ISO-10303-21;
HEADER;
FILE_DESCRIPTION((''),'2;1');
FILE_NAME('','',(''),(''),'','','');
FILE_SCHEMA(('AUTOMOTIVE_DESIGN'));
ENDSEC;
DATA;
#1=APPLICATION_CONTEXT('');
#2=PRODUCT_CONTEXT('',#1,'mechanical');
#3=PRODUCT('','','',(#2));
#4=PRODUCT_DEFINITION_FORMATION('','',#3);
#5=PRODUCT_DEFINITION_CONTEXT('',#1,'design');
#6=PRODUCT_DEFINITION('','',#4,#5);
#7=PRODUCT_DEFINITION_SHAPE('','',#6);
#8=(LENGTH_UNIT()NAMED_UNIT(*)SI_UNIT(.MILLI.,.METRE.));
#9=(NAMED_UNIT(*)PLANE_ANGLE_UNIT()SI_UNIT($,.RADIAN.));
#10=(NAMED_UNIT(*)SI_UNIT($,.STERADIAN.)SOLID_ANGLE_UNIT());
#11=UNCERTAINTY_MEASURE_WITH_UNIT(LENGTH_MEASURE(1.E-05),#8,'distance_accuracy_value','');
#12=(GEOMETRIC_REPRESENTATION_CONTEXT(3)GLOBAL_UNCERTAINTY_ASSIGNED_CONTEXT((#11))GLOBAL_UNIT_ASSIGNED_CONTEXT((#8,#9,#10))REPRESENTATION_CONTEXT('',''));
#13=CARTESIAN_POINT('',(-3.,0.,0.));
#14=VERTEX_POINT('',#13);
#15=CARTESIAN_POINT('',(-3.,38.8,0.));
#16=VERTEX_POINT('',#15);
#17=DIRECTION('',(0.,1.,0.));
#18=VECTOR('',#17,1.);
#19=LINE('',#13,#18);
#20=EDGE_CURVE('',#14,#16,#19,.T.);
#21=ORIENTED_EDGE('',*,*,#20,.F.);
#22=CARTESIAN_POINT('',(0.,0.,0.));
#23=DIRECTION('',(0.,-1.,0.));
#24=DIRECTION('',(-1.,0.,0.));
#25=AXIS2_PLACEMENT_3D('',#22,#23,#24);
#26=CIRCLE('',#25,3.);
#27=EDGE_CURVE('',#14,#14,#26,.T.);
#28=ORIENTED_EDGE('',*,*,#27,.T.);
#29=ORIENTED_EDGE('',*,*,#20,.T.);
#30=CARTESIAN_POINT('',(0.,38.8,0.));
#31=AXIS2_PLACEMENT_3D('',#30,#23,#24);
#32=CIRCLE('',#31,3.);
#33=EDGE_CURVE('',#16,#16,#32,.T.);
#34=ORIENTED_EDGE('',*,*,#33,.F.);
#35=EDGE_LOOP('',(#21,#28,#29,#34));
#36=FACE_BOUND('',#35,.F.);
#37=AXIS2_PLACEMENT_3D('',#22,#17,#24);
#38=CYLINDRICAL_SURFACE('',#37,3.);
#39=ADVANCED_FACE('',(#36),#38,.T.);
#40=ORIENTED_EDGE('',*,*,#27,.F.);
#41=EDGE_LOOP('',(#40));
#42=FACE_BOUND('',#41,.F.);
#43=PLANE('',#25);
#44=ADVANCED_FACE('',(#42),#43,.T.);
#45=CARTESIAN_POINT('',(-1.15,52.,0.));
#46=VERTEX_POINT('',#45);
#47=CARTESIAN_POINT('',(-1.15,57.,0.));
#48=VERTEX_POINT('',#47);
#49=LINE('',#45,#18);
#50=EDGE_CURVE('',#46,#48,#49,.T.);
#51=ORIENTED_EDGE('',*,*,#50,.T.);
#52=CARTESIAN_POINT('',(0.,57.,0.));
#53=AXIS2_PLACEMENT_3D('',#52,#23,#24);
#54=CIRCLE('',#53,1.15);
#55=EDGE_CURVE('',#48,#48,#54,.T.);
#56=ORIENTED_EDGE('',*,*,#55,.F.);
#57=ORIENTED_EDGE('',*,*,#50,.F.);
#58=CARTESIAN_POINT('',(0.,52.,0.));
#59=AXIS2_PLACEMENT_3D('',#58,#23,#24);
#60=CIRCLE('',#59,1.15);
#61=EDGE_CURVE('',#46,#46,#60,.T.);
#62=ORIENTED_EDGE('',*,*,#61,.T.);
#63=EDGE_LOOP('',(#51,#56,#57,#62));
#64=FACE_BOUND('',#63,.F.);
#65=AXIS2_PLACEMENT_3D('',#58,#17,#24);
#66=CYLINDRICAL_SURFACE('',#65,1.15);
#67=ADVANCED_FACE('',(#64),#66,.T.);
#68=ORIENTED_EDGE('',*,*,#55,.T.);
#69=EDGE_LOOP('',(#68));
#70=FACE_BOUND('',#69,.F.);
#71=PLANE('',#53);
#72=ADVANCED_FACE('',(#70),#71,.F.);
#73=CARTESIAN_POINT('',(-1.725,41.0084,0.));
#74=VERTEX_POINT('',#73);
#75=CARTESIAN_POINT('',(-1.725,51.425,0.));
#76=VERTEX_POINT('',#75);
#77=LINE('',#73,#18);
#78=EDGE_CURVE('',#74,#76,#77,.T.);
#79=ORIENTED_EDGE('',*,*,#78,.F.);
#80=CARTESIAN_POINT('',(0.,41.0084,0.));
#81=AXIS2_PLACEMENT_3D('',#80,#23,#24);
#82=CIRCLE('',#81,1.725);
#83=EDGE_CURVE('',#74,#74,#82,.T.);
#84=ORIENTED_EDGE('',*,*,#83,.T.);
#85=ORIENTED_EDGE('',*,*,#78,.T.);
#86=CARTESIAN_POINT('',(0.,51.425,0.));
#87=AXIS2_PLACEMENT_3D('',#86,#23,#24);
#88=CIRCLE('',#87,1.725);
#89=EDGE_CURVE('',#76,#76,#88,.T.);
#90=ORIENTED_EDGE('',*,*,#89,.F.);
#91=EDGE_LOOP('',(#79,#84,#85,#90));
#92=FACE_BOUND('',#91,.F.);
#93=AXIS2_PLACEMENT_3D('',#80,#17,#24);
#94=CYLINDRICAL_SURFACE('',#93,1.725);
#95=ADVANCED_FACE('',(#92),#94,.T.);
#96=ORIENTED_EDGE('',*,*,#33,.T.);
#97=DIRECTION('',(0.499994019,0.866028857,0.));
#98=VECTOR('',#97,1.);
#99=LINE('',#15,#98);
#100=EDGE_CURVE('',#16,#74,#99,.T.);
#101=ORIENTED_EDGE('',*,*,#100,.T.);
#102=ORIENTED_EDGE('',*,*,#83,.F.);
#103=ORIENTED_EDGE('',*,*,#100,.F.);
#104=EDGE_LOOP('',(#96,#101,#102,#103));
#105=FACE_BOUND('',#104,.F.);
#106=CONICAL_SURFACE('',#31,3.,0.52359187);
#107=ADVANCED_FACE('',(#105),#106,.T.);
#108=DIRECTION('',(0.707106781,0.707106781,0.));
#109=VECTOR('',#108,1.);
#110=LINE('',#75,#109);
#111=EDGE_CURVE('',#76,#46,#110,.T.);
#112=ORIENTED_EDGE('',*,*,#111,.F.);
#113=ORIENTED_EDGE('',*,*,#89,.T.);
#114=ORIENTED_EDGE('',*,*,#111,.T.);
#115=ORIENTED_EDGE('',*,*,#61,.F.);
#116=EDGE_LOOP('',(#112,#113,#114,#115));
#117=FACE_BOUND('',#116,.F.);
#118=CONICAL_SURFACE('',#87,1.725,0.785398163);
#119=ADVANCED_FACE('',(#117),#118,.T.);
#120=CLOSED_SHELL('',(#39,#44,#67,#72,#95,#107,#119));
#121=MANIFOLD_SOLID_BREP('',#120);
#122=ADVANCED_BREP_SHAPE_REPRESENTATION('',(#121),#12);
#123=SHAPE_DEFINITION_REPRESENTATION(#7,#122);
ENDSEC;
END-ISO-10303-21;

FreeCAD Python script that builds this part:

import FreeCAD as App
import Part
import Sketcher
Q = App.Units.Quantity


def add_polygon(sketch, points):
    """Adds a closed chain of lines whose ends are joined by coincident constraints."""
    first, n = sketch.GeometryCount, len(points)
    for a, b in zip(points, points[1:] + points[:1]):
        sketch.addGeometry(Part.LineSegment(App.Vector(*a, 0), App.Vector(*b, 0)), False)
    for i in range(n):
        sketch.addConstraint(Sketcher.Constraint("Coincident", first + i, 2, first + (i + 1) % n, 1))

doc = App.newDocument("Part")
body = doc.addObject("PartDesign::Body", "Body")

# Sketch on XY plane
sketch1 = body.newObject("Sketcher::SketchObject", "Sketch")
sketch1.AttachmentSupport = (doc.getObject("XY_Plane"), [""])
sketch1.MapMode = "FlatFace"
add_polygon(sketch1, [(-3, 0), (0, 0), (0, 57), (-1.1, 57), (-1.1, 52), (-1.7, 51.4), (-1.7, 41), (-3, 38.8)])  # lines 0-7
sketch1.addConstraint([
    Sketcher.Constraint("Horizontal", 0),
    Sketcher.Constraint("Vertical", 1),
    Sketcher.Constraint("Horizontal", 2),
    Sketcher.Constraint("Vertical", 3),
    Sketcher.Constraint("Vertical", 5),
    Sketcher.Constraint("Vertical", 7),
    Sketcher.Constraint("Coincident", 0, 2, -1, 1),
    Sketcher.Constraint("DistanceY", 1, 1, 1, 2, 57.0),
    Sketcher.Constraint("DistanceY", 3, 2, 3, 1, 5.0),
    Sketcher.Constraint("DistanceY", 7, 2, 7, 1, 38.8),
    Sketcher.Constraint("DistanceX", 0, 1, 0, 2, 3.0),
    Sketcher.Constraint("Angle", 4, Q("-135 deg")),
    Sketcher.Constraint("Angle", 6, Q("-119.9996 deg")),
    Sketcher.Constraint("DistanceY", 4, 2, 2, 2, 5.575),
    Sketcher.Constraint("DistanceX", 2, 2, 2, 1, 1.15),
])
revolution = body.newObject("PartDesign::Revolution", "Revolution")
revolution.Profile = sketch1
revolution.ReferenceAxis = (sketch1, ["V_Axis"])
revolution.Angle = 360

doc.recompute()
